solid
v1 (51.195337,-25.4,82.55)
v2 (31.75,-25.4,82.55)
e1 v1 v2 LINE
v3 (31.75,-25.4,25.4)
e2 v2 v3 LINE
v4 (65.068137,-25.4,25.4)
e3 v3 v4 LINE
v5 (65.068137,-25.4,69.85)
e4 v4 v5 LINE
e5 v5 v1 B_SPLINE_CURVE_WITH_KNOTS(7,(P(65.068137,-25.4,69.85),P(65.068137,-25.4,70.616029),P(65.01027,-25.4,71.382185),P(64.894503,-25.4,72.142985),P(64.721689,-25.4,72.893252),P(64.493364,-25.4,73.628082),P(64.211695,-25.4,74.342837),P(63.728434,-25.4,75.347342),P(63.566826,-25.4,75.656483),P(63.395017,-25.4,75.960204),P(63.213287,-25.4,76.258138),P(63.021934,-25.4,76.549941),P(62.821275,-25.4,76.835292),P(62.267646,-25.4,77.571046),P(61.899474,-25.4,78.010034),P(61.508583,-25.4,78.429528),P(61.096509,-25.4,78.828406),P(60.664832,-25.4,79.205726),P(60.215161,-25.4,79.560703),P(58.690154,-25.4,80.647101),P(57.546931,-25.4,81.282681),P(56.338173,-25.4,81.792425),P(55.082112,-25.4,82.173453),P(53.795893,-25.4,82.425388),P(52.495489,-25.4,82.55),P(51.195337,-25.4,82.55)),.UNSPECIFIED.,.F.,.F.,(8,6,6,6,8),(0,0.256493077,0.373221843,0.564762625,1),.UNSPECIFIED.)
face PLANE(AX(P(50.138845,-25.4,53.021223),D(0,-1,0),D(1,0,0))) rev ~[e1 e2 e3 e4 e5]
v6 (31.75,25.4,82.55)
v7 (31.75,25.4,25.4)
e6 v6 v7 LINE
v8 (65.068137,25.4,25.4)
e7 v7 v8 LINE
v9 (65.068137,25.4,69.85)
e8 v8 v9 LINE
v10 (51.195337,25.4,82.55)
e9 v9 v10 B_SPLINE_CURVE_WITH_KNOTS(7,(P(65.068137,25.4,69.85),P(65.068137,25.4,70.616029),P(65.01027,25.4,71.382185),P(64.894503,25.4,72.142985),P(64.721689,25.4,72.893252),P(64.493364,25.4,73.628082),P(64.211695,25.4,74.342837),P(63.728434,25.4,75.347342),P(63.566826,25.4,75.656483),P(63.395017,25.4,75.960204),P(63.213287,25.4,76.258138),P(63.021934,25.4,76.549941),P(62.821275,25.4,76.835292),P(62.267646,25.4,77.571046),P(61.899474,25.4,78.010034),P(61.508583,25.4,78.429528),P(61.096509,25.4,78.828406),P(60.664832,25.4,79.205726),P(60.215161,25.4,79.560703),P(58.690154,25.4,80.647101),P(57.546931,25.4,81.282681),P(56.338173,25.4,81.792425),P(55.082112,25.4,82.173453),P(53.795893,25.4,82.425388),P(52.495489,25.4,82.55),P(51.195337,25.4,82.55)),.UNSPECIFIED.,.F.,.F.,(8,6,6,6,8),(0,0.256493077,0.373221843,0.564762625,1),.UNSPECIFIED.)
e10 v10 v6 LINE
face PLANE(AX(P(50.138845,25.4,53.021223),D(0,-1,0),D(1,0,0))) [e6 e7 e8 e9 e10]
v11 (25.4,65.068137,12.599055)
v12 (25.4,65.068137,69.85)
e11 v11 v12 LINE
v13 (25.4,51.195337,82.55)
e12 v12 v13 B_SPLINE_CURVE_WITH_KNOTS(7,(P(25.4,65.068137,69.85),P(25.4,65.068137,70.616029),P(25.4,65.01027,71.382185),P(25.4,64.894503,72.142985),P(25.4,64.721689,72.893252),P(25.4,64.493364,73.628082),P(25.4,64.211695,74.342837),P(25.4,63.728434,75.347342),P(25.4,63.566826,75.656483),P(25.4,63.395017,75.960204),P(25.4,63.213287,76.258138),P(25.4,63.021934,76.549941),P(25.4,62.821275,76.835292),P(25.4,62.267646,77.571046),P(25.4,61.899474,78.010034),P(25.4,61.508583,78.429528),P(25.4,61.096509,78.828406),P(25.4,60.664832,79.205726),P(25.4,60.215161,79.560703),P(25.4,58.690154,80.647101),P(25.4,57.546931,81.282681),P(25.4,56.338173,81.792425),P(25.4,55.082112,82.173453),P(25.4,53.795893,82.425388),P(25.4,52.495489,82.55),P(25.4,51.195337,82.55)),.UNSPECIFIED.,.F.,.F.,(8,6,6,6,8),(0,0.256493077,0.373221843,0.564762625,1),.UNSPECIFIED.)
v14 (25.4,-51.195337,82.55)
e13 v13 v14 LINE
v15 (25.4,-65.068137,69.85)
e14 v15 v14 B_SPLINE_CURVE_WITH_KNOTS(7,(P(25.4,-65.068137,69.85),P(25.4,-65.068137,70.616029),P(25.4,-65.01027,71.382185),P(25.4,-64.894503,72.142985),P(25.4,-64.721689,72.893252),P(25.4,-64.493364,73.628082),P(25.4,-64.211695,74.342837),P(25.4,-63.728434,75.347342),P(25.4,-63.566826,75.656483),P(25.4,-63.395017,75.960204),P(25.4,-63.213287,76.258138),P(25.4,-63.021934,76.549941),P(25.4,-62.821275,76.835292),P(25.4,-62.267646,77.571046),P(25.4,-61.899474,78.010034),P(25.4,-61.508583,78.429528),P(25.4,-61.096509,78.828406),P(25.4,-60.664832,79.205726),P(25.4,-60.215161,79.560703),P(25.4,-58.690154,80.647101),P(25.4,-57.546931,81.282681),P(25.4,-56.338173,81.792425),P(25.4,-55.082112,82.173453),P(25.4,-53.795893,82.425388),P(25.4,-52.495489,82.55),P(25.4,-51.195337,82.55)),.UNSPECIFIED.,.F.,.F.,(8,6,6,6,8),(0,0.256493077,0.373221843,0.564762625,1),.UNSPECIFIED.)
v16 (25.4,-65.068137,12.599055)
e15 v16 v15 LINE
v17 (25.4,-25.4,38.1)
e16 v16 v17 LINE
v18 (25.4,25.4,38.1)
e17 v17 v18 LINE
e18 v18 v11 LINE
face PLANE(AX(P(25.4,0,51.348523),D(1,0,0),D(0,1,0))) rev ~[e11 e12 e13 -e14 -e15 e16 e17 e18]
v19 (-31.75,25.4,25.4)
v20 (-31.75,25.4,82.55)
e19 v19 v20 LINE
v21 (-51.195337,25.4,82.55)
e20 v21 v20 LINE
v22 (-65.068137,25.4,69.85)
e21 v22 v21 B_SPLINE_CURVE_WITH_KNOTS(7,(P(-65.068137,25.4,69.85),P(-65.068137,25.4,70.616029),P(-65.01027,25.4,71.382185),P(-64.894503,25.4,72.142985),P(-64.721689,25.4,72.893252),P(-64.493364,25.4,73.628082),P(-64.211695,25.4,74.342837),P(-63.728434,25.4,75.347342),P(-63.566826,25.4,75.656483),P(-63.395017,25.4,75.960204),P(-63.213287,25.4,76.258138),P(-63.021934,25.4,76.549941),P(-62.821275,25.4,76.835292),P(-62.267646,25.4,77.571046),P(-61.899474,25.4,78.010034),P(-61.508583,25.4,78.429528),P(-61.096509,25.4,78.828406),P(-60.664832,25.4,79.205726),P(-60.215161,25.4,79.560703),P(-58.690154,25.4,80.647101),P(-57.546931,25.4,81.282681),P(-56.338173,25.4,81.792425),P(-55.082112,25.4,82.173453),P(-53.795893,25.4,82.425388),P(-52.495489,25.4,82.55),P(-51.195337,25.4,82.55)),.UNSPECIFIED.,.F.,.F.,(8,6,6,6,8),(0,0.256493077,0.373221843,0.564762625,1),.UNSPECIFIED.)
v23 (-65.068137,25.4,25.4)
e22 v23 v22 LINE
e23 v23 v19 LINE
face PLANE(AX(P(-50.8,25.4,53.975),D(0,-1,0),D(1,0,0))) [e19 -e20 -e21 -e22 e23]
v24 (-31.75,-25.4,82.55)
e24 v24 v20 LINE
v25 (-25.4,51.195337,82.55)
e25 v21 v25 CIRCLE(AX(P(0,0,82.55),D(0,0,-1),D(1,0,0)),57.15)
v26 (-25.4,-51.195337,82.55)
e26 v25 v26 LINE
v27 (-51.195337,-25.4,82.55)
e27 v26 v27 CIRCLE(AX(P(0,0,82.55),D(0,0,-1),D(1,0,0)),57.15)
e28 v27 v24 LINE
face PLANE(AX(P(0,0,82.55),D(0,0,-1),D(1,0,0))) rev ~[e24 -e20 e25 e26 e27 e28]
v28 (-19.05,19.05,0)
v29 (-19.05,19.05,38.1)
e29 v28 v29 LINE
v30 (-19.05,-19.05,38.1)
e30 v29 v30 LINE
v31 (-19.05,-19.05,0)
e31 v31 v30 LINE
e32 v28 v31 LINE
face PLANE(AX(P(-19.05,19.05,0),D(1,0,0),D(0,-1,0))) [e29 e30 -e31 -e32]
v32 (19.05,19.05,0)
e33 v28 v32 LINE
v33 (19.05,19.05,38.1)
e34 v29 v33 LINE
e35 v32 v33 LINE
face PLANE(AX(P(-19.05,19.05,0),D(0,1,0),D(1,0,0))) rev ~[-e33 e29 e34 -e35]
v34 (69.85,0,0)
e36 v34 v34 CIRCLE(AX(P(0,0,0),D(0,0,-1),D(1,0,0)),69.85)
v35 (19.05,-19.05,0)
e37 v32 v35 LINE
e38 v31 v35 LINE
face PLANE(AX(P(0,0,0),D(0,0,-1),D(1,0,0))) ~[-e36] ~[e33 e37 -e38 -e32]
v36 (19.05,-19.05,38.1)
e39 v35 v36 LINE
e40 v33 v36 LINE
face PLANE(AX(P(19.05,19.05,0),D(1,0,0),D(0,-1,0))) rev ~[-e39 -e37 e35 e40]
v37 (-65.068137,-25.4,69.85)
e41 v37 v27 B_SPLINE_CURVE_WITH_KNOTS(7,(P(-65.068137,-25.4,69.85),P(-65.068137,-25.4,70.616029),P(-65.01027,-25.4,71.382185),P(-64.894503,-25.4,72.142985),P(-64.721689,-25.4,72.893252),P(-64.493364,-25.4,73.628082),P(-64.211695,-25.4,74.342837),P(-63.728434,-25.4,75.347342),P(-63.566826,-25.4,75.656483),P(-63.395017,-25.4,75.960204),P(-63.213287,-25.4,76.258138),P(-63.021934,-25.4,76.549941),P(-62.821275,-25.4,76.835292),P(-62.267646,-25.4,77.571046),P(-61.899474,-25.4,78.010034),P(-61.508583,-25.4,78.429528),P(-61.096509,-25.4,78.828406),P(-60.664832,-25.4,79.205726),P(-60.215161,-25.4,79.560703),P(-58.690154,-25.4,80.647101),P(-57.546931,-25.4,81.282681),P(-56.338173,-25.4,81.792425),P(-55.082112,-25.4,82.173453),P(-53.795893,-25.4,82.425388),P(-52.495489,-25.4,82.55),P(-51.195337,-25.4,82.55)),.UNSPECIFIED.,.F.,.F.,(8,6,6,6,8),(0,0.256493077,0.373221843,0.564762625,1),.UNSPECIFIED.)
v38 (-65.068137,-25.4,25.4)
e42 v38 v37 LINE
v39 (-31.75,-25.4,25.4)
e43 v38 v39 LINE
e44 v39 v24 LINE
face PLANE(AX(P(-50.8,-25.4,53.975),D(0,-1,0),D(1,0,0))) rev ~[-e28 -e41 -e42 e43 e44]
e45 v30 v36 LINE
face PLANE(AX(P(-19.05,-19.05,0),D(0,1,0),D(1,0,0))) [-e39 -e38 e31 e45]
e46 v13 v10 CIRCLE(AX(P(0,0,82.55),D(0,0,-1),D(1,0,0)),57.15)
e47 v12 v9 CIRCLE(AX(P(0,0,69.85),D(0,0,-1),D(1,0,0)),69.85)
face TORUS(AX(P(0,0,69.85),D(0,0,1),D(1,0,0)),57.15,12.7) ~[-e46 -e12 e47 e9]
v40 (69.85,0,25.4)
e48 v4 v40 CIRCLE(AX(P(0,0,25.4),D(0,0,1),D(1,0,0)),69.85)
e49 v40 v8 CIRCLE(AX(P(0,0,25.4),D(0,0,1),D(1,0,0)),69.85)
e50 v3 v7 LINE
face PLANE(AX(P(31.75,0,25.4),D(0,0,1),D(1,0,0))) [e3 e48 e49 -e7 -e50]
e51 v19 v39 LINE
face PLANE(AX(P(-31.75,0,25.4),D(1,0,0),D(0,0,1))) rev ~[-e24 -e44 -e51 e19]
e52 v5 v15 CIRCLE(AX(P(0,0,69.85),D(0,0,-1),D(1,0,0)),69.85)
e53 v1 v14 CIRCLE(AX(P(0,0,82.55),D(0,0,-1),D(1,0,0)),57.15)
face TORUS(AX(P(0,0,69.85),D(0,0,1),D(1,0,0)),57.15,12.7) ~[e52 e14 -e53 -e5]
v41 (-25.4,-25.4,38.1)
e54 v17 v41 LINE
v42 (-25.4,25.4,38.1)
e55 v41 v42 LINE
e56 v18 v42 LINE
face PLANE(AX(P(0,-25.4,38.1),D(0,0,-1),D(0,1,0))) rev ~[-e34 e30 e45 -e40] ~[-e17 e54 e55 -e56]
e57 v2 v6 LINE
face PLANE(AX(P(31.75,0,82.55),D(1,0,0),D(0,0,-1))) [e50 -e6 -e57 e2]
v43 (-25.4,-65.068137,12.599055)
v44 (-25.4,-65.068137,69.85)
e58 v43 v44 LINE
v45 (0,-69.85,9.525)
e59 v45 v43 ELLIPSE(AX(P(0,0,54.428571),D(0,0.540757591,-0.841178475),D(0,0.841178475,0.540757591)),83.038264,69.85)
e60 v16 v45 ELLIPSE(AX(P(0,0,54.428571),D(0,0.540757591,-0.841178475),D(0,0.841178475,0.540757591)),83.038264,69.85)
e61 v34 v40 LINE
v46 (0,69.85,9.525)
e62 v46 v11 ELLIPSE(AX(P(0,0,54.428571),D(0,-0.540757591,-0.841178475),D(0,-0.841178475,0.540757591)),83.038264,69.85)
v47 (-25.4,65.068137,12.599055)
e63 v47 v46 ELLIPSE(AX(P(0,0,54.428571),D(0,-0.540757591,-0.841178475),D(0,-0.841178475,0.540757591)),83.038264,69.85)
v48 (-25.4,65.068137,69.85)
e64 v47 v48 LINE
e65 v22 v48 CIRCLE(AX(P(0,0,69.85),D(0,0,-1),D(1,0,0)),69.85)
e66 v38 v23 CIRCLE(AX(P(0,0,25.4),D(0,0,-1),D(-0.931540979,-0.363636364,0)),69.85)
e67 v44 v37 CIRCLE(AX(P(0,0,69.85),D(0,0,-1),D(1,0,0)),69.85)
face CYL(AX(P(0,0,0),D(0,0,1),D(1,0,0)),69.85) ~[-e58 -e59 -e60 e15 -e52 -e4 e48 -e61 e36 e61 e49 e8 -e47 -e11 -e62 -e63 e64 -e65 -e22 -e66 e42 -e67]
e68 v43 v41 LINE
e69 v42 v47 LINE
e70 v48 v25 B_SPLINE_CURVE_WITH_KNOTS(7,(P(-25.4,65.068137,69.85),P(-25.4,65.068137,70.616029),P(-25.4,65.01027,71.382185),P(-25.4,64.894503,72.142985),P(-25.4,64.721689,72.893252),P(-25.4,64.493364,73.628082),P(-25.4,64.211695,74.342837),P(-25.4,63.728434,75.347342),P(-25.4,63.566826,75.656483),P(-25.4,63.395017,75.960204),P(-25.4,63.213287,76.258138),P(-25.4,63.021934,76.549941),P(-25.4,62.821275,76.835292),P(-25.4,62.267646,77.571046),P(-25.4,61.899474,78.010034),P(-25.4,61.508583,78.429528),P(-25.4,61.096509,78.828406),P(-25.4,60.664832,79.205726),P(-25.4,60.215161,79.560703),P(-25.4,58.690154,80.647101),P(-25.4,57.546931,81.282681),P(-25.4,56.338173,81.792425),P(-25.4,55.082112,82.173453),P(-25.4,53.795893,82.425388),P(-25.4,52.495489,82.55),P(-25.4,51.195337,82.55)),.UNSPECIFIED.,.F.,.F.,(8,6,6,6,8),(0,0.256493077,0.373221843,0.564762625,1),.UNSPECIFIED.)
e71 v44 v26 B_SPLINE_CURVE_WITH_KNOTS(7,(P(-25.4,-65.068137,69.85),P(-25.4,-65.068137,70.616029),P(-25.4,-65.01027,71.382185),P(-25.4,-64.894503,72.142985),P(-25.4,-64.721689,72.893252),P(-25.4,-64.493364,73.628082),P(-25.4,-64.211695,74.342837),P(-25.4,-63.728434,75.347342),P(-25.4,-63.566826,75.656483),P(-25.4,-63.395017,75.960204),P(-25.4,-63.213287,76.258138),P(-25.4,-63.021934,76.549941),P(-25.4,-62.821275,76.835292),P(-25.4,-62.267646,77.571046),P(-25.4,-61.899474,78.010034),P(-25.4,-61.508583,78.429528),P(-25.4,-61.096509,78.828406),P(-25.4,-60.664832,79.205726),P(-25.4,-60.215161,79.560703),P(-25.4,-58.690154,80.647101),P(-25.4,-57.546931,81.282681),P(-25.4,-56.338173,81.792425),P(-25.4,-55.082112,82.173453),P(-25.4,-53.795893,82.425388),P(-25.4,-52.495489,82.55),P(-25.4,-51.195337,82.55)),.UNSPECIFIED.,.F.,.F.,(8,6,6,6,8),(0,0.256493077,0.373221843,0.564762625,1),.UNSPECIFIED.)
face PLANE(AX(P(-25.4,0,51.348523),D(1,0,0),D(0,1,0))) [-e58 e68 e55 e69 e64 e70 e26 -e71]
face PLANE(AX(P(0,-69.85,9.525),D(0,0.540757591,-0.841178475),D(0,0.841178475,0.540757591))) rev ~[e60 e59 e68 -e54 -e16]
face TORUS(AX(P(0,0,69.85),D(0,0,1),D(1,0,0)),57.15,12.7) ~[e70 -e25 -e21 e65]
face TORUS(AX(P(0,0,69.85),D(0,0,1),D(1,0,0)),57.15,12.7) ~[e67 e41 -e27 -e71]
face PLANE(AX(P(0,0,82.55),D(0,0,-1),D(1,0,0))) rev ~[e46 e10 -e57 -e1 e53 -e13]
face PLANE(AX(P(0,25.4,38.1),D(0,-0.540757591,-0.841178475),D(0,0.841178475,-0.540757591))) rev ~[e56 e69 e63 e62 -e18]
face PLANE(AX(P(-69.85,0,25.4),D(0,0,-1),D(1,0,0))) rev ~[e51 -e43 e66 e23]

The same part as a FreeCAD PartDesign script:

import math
import FreeCAD as App
import Part
import Sketcher
from FreeCAD import Vector
Q = App.Units.Quantity

doc = App.newDocument("Part")
body = doc.addObject("PartDesign::Body", "Body")

# Sketch on XZ plane
sketch1 = doc.addObject("Sketcher::SketchObject", "Sketch")
body.addObject(sketch1)
sketch1.AttachmentSupport = (doc.XZ_Plane, [""])
sketch1.MapMode = "FlatFace"
sketch1.addGeometry([
    Part.ArcOfCircle(Part.Circle(Vector(57.15, 69.85, 0), Vector(0, 0, 1), 12.7), math.radians(0), math.radians(90)),  # 0
    Part.LineSegment(Vector(57.15, 82.55, 0), Vector(0, 82.55, 0)),  # 1
    Part.LineSegment(Vector(0, 82.55, 0), Vector(0, 0, 0)),  # 2
    Part.LineSegment(Vector(0, 0, 0), Vector(69.85, 0, 0)),  # 3
    Part.LineSegment(Vector(69.85, 0, 0), Vector(69.85, 69.85, 0)),  # 4
], False)
sketch1.addConstraint([
    Sketcher.Constraint("Tangent", 0, 2, 1, 1),
    Sketcher.Constraint("Coincident", 1, 2, 2, 1),
    Sketcher.Constraint("Coincident", 2, 2, 3, 1),
    Sketcher.Constraint("Coincident", 3, 2, 4, 1),
    Sketcher.Constraint("Tangent", 4, 2, 0, 1),
    Sketcher.Constraint("Horizontal", 1),
    Sketcher.Constraint("Vertical", 2),
    Sketcher.Constraint("Horizontal", 3),
    Sketcher.Constraint("Vertical", 4),
    Sketcher.Constraint("Coincident", 2, 2, -1, 1),
    Sketcher.Constraint("Equal", 3, 4),
    Sketcher.Constraint("Radius", 0, Q("0.5 in")),
    Sketcher.Constraint("DistanceX", 1, 2, 1, 1, Q("2.25 in")),
])
revolution = doc.addObject("PartDesign::Revolution", "Revolution")
body.addObject(revolution)
revolution.Profile = sketch1
revolution.ReferenceAxis = (sketch1, ["V_Axis"])
revolution.Angle = 360

# Sketch on XZ plane
sketch2 = doc.addObject("Sketcher::SketchObject", "Sketch001")
body.addObject(sketch2)
sketch2.AttachmentSupport = (doc.XZ_Plane, [""])
sketch2.MapMode = "FlatFace"
sketch2.addGeometry([
    Part.LineSegment(Vector(31.75, 25.4, 0), Vector(69.85, 25.4, 0)),  # 0
    Part.LineSegment(Vector(69.85, 25.4, 0), Vector(69.85, 69.85, 0)),  # 1
    Part.ArcOfCircle(Part.Circle(Vector(57.15, 69.85, 0), Vector(0, 0, 1), 12.7), math.radians(0), math.radians(90)),  # 2
    Part.LineSegment(Vector(57.15, 82.55, 0), Vector(31.75, 82.55, 0)),  # 3
    Part.LineSegment(Vector(31.75, 82.55, 0), Vector(31.75, 25.4, 0)),  # 4
    Part.LineSegment(Vector(-69.85, 82.55, 0), Vector(-69.85, 25.4, 0)),  # 5
    Part.LineSegment(Vector(-69.85, 25.4, 0), Vector(-31.75, 25.4, 0)),  # 6
    Part.LineSegment(Vector(-31.75, 25.4, 0), Vector(-31.75, 82.55, 0)),  # 7
    Part.LineSegment(Vector(-31.75, 82.55, 0), Vector(-69.85, 82.55, 0)),  # 8
], False)
sketch2.addConstraint([
    Sketcher.Constraint("Coincident", 0, 2, 1, 1),
    Sketcher.Constraint("Tangent", 1, 2, 2, 1),
    Sketcher.Constraint("Tangent", 2, 2, 3, 1),
    Sketcher.Constraint("Coincident", 3, 2, 4, 1),
    Sketcher.Constraint("Coincident", 4, 2, 0, 1),
    Sketcher.Constraint("Coincident", 5, 2, 6, 1),
    Sketcher.Constraint("Coincident", 6, 2, 7, 1),
    Sketcher.Constraint("Coincident", 7, 2, 8, 1),
    Sketcher.Constraint("Coincident", 8, 2, 5, 1),
    Sketcher.Constraint("Horizontal", 0),
    Sketcher.Constraint("Vertical", 1),
    Sketcher.Constraint("Horizontal", 3),
    Sketcher.Constraint("Vertical", 4),
    Sketcher.Constraint("Vertical", 5),
    Sketcher.Constraint("Horizontal", 6),
    Sketcher.Constraint("Vertical", 7),
    Sketcher.Constraint("Horizontal", 8),
    Sketcher.Constraint("Symmetric", 0, 2, 5, 2, -2),
    Sketcher.Constraint("Symmetric", 3, 2, 7, 2, -2),
    Sketcher.Constraint("Radius", 2, Q("0.5 in")),
    Sketcher.Constraint("DistanceX", 3, 2, 3, 1, Q("1 in")),
    Sketcher.Constraint("DistanceY", -1, 1, 0, 2, Q("1 in")),
    Sketcher.Constraint("DistanceX", 5, 2, 4, 2, Q("4 in")),
    Sketcher.Constraint("DistanceY", 1, 1, 1, 2, Q("1.75 in")),
])
pocket1 = doc.addObject("PartDesign::Pocket", "Pocket")
body.addObject(pocket1)
pocket1.Profile = sketch2
pocket1.Length = Q("2 in")
pocket1.Midplane = True

# Sketch on YZ plane
sketch3 = doc.addObject("Sketcher::SketchObject", "Sketch002")
body.addObject(sketch3)
sketch3.AttachmentSupport = (doc.YZ_Plane, [""])
sketch3.MapMode = "FlatFace"
sketch3.addGeometry([
    Part.LineSegment(Vector(69.85, 9.525, 0), Vector(69.85, 82.55, 0)),  # 0
    Part.LineSegment(Vector(69.85, 82.55, 0), Vector(-69.85, 82.55, 0)),  # 1
    Part.LineSegment(Vector(-69.85, 82.55, 0), Vector(-69.85, 9.525, 0)),  # 2
    Part.LineSegment(Vector(-69.85, 9.525, 0), Vector(-25.4, 38.1, 0)),  # 3
    Part.LineSegment(Vector(-25.4, 38.1, 0), Vector(25.4, 38.1, 0)),  # 4
    Part.LineSegment(Vector(25.4, 38.1, 0), Vector(69.85, 9.525, 0)),  # 5
], False)
sketch3.addConstraint([
    Sketcher.Constraint("Coincident", 0, 2, 1, 1),
    Sketcher.Constraint("Coincident", 1, 2, 2, 1),
    Sketcher.Constraint("Coincident", 2, 2, 3, 1),
    Sketcher.Constraint("Coincident", 3, 2, 4, 1),
    Sketcher.Constraint("Coincident", 4, 2, 5, 1),
    Sketcher.Constraint("Coincident", 5, 2, 0, 1),
    Sketcher.Constraint("Vertical", 0),
    Sketcher.Constraint("Horizontal", 1),
    Sketcher.Constraint("Vertical", 2),
    Sketcher.Constraint("Horizontal", 4),
    Sketcher.Constraint("Symmetric", 2, 2, 5, 2, -2),
    Sketcher.Constraint("Equal", 3, 5),
    Sketcher.Constraint("DistanceX", 4, 1, 4, 2, Q("2 in")),
    Sketcher.Constraint("DistanceX", 1, 2, 1, 1, Q("5.5 in")),
    Sketcher.Constraint("DistanceY", -1, 1, 3, 2, Q("1.5 in")),
    Sketcher.Constraint("DistanceY", 0, 1, 0, 2, Q("2.875 in")),
    Sketcher.Constraint("DistanceY", -1, 1, 0, 2, Q("3.25 in")),
])
pocket2 = doc.addObject("PartDesign::Pocket", "Pocket001")
body.addObject(pocket2)
pocket2.Profile = sketch3
pocket2.Length = Q("2 in")
pocket2.Midplane = True

# Sketch on XY plane
sketch4 = doc.addObject("Sketcher::SketchObject", "Sketch003")
body.addObject(sketch4)
sketch4.AttachmentSupport = (doc.XY_Plane, [""])
sketch4.MapMode = "FlatFace"
sketch4.addGeometry([
    Part.LineSegment(Vector(-19.05, -19.05, 0), Vector(-19.05, 19.05, 0)),
    Part.LineSegment(Vector(-19.05, 19.05, 0), Vector(19.05, 19.05, 0)),
    Part.LineSegment(Vector(19.05, 19.05, 0), Vector(19.05, -19.05, 0)),
    Part.LineSegment(Vector(19.05, -19.05, 0), Vector(-19.05, -19.05, 0)),
], False)
sketch4.addConstraint([
    Sketcher.Constraint("Coincident", 0, 2, 1, 1),
    Sketcher.Constraint("Coincident", 1, 2, 2, 1),
    Sketcher.Constraint("Coincident", 2, 2, 3, 1),
    Sketcher.Constraint("Coincident", 3, 2, 0, 1),
    Sketcher.Constraint("Vertical", 0),
    Sketcher.Constraint("Horizontal", 1),
    Sketcher.Constraint("Vertical", 2),
    Sketcher.Constraint("Horizontal", 3),
    Sketcher.Constraint("Symmetric", 0, 2, 2, 2, -1, 1),
    Sketcher.Constraint("Equal", 3, 0),
    Sketcher.Constraint("DistanceX", 1, 1, 1, 2, Q("1.5 in")),
])
pocket3 = doc.addObject("PartDesign::Pocket", "Pocket002")
body.addObject(pocket3)
pocket3.Profile = sketch4
pocket3.Type = "ThroughAll"
pocket3.Reversed = True

doc.recompute()
